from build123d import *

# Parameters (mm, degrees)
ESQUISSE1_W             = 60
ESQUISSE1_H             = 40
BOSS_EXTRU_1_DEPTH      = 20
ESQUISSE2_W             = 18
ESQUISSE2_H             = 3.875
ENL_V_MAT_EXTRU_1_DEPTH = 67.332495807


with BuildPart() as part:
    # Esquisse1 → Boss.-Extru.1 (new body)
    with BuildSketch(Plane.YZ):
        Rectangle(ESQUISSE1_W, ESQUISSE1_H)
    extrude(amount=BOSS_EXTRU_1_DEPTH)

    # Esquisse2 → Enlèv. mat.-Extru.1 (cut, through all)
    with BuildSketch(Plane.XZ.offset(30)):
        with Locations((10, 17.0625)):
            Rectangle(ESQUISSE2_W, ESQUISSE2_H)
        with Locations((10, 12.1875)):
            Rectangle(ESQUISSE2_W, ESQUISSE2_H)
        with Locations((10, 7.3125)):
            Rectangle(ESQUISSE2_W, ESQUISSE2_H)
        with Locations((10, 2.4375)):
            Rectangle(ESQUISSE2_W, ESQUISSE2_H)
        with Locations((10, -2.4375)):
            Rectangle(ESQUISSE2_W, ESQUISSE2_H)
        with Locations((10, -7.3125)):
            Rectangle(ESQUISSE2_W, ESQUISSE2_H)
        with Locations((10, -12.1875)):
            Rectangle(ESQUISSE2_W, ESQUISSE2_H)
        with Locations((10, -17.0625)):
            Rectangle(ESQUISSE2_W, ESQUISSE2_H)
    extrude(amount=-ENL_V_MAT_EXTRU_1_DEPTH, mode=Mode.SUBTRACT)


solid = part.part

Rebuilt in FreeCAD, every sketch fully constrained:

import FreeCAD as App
import Part
import Sketcher

doc = App.newDocument("Part")
body = doc.addObject("PartDesign::Body", "Body")

sketch1 = body.newObject("Sketcher::SketchObject", "Sketch")
sketch1.AttachmentSupport = (doc.getObject("YZ_Plane"), [""])
sketch1.MapMode = "FlatFace"
sketch1.addGeometry(Part.LineSegment(App.Vector(-30, 20, 0), App.Vector(-30, -20, 0)), False)
sketch1.addGeometry(Part.LineSegment(App.Vector(-30, -20, 0), App.Vector(30, -20, 0)), False)
sketch1.addGeometry(Part.LineSegment(App.Vector(30, -20, 0), App.Vector(30, 20, 0)), False)
sketch1.addGeometry(Part.LineSegment(App.Vector(30, 20, 0), App.Vector(-30, 20, 0)), False)
sketch1.addConstraint(Sketcher.Constraint("Coincident", 0, 2, 1, 1))
sketch1.addConstraint(Sketcher.Constraint("Coincident", 1, 2, 2, 1))
sketch1.addConstraint(Sketcher.Constraint("Coincident", 2, 2, 3, 1))
sketch1.addConstraint(Sketcher.Constraint("Coincident", 3, 2, 0, 1))
sketch1.addConstraint(Sketcher.Constraint("Vertical", 0))
sketch1.addConstraint(Sketcher.Constraint("Horizontal", 1))
sketch1.addConstraint(Sketcher.Constraint("Vertical", 2))
sketch1.addConstraint(Sketcher.Constraint("Horizontal", 3))
sketch1.addConstraint(Sketcher.Constraint("Symmetric", 0, 2, 2, 2, -1, 1))
sketch1.addConstraint(Sketcher.Constraint("DistanceX", 1, 1, 1, 2, 60.0))
sketch1.addConstraint(Sketcher.Constraint("DistanceY", 0, 2, 0, 1, 40.0))
pad1 = body.newObject("PartDesign::Pad", "Pad")
pad1.Profile = sketch1
pad1.Length = 20

sketch2 = body.newObject("Sketcher::SketchObject", "Sketch001")
sketch2.AttachmentSupport = (doc.getObject("XZ_Plane"), [""])
sketch2.MapMode = "FlatFace"
sketch2.AttachmentOffset = App.Placement(App.Vector(0, 0, 30), App.Rotation())
sketch2.addGeometry(Part.LineSegment(App.Vector(1, 19, 0), App.Vector(1, 15.1, 0)), False)
sketch2.addGeometry(Part.LineSegment(App.Vector(1, 15.1, 0), App.Vector(19, 15.1, 0)), False)
sketch2.addGeometry(Part.LineSegment(App.Vector(19, 15.1, 0), App.Vector(19, 19, 0)), False)
sketch2.addGeometry(Part.LineSegment(App.Vector(19, 19, 0), App.Vector(1, 19, 0)), False)
sketch2.addGeometry(Part.LineSegment(App.Vector(1, 14.1, 0), App.Vector(1, 10.2, 0)), False)
sketch2.addGeometry(Part.LineSegment(App.Vector(1, 10.2, 0), App.Vector(19, 10.2, 0)), False)
sketch2.addGeometry(Part.LineSegment(App.Vector(19, 10.2, 0), App.Vector(19, 14.1, 0)), False)
sketch2.addGeometry(Part.LineSegment(App.Vector(19, 14.1, 0), App.Vector(1, 14.1, 0)), False)
sketch2.addGeometry(Part.LineSegment(App.Vector(1, 9.2, 0), App.Vector(1, 5.4, 0)), False)
sketch2.addGeometry(Part.LineSegment(App.Vector(1, 5.4, 0), App.Vector(19, 5.4, 0)), False)
sketch2.addGeometry(Part.LineSegment(App.Vector(19, 5.4, 0), App.Vector(19, 9.2, 0)), False)
sketch2.addGeometry(Part.LineSegment(App.Vector(19, 9.2, 0), App.Vector(1, 9.2, 0)), False)
sketch2.addGeometry(Part.LineSegment(App.Vector(1, 4.4, 0), App.Vector(1, 0.5, 0)), False)
sketch2.addGeometry(Part.LineSegment(App.Vector(1, 0.5, 0), App.Vector(19, 0.5, 0)), False)
sketch2.addGeometry(Part.LineSegment(App.Vector(19, 0.5, 0), App.Vector(19, 4.4, 0)), False)
sketch2.addGeometry(Part.LineSegment(App.Vector(19, 4.4, 0), App.Vector(1, 4.4, 0)), False)
sketch2.addGeometry(Part.LineSegment(App.Vector(1, -0.5, 0), App.Vector(1, -4.4, 0)), False)
sketch2.addGeometry(Part.LineSegment(App.Vector(1, -4.4, 0), App.Vector(19, -4.4, 0)), False)
sketch2.addGeometry(Part.LineSegment(App.Vector(19, -4.4, 0), App.Vector(19, -0.5, 0)), False)
sketch2.addGeometry(Part.LineSegment(App.Vector(19, -0.5, 0), App.Vector(1, -0.5, 0)), False)
sketch2.addGeometry(Part.LineSegment(App.Vector(1, -5.4, 0), App.Vector(1, -9.2, 0)), False)
sketch2.addGeometry(Part.LineSegment(App.Vector(1, -9.2, 0), App.Vector(19, -9.2, 0)), False)
sketch2.addGeometry(Part.LineSegment(App.Vector(19, -9.2, 0), App.Vector(19, -5.4, 0)), False)
sketch2.addGeometry(Part.LineSegment(App.Vector(19, -5.4, 0), App.Vector(1, -5.4, 0)), False)
sketch2.addGeometry(Part.LineSegment(App.Vector(1, -10.2, 0), App.Vector(1, -14.1, 0)), False)
sketch2.addGeometry(Part.LineSegment(App.Vector(1, -14.1, 0), App.Vector(19, -14.1, 0)), False)
sketch2.addGeometry(Part.LineSegment(App.Vector(19, -14.1, 0), App.Vector(19, -10.2, 0)), False)
sketch2.addGeometry(Part.LineSegment(App.Vector(19, -10.2, 0), App.Vector(1, -10.2, 0)), False)
sketch2.addGeometry(Part.LineSegment(App.Vector(1, -15.1, 0), App.Vector(1, -19, 0)), False)
sketch2.addGeometry(Part.LineSegment(App.Vector(1, -19, 0), App.Vector(19, -19, 0)), False)
sketch2.addGeometry(Part.LineSegment(App.Vector(19, -19, 0), App.Vector(19, -15.1, 0)), False)
sketch2.addGeometry(Part.LineSegment(App.Vector(19, -15.1, 0), App.Vector(1, -15.1, 0)), False)
sketch2.addConstraint(Sketcher.Constraint("Coincident", 0, 2, 1, 1))
sketch2.addConstraint(Sketcher.Constraint("Coincident", 1, 2, 2, 1))
sketch2.addConstraint(Sketcher.Constraint("Coincident", 2, 2, 3, 1))
sketch2.addConstraint(Sketcher.Constraint("Coincident", 3, 2, 0, 1))
sketch2.addConstraint(Sketcher.Constraint("Coincident", 4, 2, 5, 1))
sketch2.addConstraint(Sketcher.Constraint("Coincident", 5, 2, 6, 1))
sketch2.addConstraint(Sketcher.Constraint("Coincident", 6, 2, 7, 1))
sketch2.addConstraint(Sketcher.Constraint("Coincident", 7, 2, 4, 1))
sketch2.addConstraint(Sketcher.Constraint("Coincident", 8, 2, 9, 1))
sketch2.addConstraint(Sketcher.Constraint("Coincident", 9, 2, 10, 1))
sketch2.addConstraint(Sketcher.Constraint("Coincident", 10, 2, 11, 1))
sketch2.addConstraint(Sketcher.Constraint("Coincident", 11, 2, 8, 1))
sketch2.addConstraint(Sketcher.Constraint("Coincident", 12, 2, 13, 1))
sketch2.addConstraint(Sketcher.Constraint("Coincident", 13, 2, 14, 1))
sketch2.addConstraint(Sketcher.Constraint("Coincident", 14, 2, 15, 1))
sketch2.addConstraint(Sketcher.Constraint("Coincident", 15, 2, 12, 1))
sketch2.addConstraint(Sketcher.Constraint("Coincident", 16, 2, 17, 1))
sketch2.addConstraint(Sketcher.Constraint("Coincident", 17, 2, 18, 1))
sketch2.addConstraint(Sketcher.Constraint("Coincident", 18, 2, 19, 1))
sketch2.addConstraint(Sketcher.Constraint("Coincident", 19, 2, 16, 1))
sketch2.addConstraint(Sketcher.Constraint("Coincident", 20, 2, 21, 1))
sketch2.addConstraint(Sketcher.Constraint("Coincident", 21, 2, 22, 1))
sketch2.addConstraint(Sketcher.Constraint("Coincident", 22, 2, 23, 1))
sketch2.addConstraint(Sketcher.Constraint("Coincident", 23, 2, 20, 1))
sketch2.addConstraint(Sketcher.Constraint("Coincident", 24, 2, 25, 1))
sketch2.addConstraint(Sketcher.Constraint("Coincident", 25, 2, 26, 1))
sketch2.addConstraint(Sketcher.Constraint("Coincident", 26, 2, 27, 1))
sketch2.addConstraint(Sketcher.Constraint("Coincident", 27, 2, 24, 1))
sketch2.addConstraint(Sketcher.Constraint("Coincident", 28, 2, 29, 1))
sketch2.addConstraint(Sketcher.Constraint("Coincident", 29, 2, 30, 1))
sketch2.addConstraint(Sketcher.Constraint("Coincident", 30, 2, 31, 1))
sketch2.addConstraint(Sketcher.Constraint("Coincident", 31, 2, 28, 1))
sketch2.addConstraint(Sketcher.Constraint("Vertical", 0))
sketch2.addConstraint(Sketcher.Constraint("Horizontal", 1))
sketch2.addConstraint(Sketcher.Constraint("Vertical", 2))
sketch2.addConstraint(Sketcher.Constraint("Horizontal", 3))
sketch2.addConstraint(Sketcher.Constraint("Vertical", 4))
sketch2.addConstraint(Sketcher.Constraint("Horizontal", 5))
sketch2.addConstraint(Sketcher.Constraint("Vertical", 6))
sketch2.addConstraint(Sketcher.Constraint("Horizontal", 7))
sketch2.addConstraint(Sketcher.Constraint("Vertical", 8))
sketch2.addConstraint(Sketcher.Constraint("Horizontal", 9))
sketch2.addConstraint(Sketcher.Constraint("Vertical", 10))
sketch2.addConstraint(Sketcher.Constraint("Horizontal", 11))
sketch2.addConstraint(Sketcher.Constraint("Vertical", 12))
sketch2.addConstraint(Sketcher.Constraint("Horizontal", 13))
sketch2.addConstraint(Sketcher.Constraint("Vertical", 14))
sketch2.addConstraint(Sketcher.Constraint("Horizontal", 15))
sketch2.addConstraint(Sketcher.Constraint("Vertical", 16))
sketch2.addConstraint(Sketcher.Constraint("Horizontal", 17))
sketch2.addConstraint(Sketcher.Constraint("Vertical", 18))
sketch2.addConstraint(Sketcher.Constraint("Horizontal", 19))
sketch2.addConstraint(Sketcher.Constraint("Vertical", 20))
sketch2.addConstraint(Sketcher.Constraint("Horizontal", 21))
sketch2.addConstraint(Sketcher.Constraint("Vertical", 22))
sketch2.addConstraint(Sketcher.Constraint("Horizontal", 23))
sketch2.addConstraint(Sketcher.Constraint("Vertical", 24))
sketch2.addConstraint(Sketcher.Constraint("Horizontal", 25))
sketch2.addConstraint(Sketcher.Constraint("Vertical", 26))
sketch2.addConstraint(Sketcher.Constraint("Horizontal", 27))
sketch2.addConstraint(Sketcher.Constraint("Vertical", 28))
sketch2.addConstraint(Sketcher.Constraint("Horizontal", 29))
sketch2.addConstraint(Sketcher.Constraint("Vertical", 30))
sketch2.addConstraint(Sketcher.Constraint("Horizontal", 31))
sketch2.addConstraint(Sketcher.Constraint("Symmetric", 15, 2, 16, 2, -1))
sketch2.addConstraint(Sketcher.Constraint("Symmetric", 13, 2, 18, 2, -1))
sketch2.addConstraint(Sketcher.Constraint("Symmetric", 11, 2, 20, 2, -1))
sketch2.addConstraint(Sketcher.Constraint("Symmetric", 9, 2, 22, 2, -1))
sketch2.addConstraint(Sketcher.Constraint("Symmetric", 7, 2, 24, 2, -1))
sketch2.addConstraint(Sketcher.Constraint("Symmetric", 5, 2, 26, 2, -1))
sketch2.addConstraint(Sketcher.Constraint("Symmetric", 3, 2, 28, 2, -1))
sketch2.addConstraint(Sketcher.Constraint("Symmetric", 1, 2, 30, 2, -1))
sketch2.addConstraint(Sketcher.Constraint("Vertical", 3, 2, 4, 2))
sketch2.addConstraint(Sketcher.Constraint("Vertical", 2, 2, 5, 2))
sketch2.addConstraint(Sketcher.Constraint("Vertical", 7, 2, 8, 2))
sketch2.addConstraint(Sketcher.Constraint("Vertical", 6, 2, 9, 2))
sketch2.addConstraint(Sketcher.Constraint("Vertical", 11, 2, 12, 2))
sketch2.addConstraint(Sketcher.Constraint("Vertical", 10, 2, 13, 2))
sketch2.addConstraint(Sketcher.Constraint("Equal", 2, 4))
sketch2.addConstraint(Sketcher.Constraint("Equal", 6, 8))
sketch2.addConstraint(Sketcher.Constraint("Equal", 10, 12))
sketch2.addConstraint(Sketcher.Constraint("DistanceX", 1, 1, 1, 2, 18.0))
sketch2.addConstraint(Sketcher.Constraint("DistanceX", -1, 1, 0, 2, 1.0))
sketch2.addConstraint(Sketcher.Constraint("DistanceY", -1, 1, 2, 2, 19.0))
sketch2.addConstraint(Sketcher.Constraint("DistanceY", 6, 2, 1, 2, 1.0))
sketch2.addConstraint(Sketcher.Constraint("DistanceY", 10, 2, 5, 2, 1.0))
sketch2.addConstraint(Sketcher.Constraint("DistanceY", 14, 2, 9, 2, 1.0))
sketch2.addConstraint(Sketcher.Constraint("DistanceY", 18, 2, 13, 2, 1.0))
pocket1 = body.newObject("PartDesign::Pocket", "Pocket")
pocket1.Profile = sketch2
pocket1.Type = "ThroughAll"

doc.recompute()
